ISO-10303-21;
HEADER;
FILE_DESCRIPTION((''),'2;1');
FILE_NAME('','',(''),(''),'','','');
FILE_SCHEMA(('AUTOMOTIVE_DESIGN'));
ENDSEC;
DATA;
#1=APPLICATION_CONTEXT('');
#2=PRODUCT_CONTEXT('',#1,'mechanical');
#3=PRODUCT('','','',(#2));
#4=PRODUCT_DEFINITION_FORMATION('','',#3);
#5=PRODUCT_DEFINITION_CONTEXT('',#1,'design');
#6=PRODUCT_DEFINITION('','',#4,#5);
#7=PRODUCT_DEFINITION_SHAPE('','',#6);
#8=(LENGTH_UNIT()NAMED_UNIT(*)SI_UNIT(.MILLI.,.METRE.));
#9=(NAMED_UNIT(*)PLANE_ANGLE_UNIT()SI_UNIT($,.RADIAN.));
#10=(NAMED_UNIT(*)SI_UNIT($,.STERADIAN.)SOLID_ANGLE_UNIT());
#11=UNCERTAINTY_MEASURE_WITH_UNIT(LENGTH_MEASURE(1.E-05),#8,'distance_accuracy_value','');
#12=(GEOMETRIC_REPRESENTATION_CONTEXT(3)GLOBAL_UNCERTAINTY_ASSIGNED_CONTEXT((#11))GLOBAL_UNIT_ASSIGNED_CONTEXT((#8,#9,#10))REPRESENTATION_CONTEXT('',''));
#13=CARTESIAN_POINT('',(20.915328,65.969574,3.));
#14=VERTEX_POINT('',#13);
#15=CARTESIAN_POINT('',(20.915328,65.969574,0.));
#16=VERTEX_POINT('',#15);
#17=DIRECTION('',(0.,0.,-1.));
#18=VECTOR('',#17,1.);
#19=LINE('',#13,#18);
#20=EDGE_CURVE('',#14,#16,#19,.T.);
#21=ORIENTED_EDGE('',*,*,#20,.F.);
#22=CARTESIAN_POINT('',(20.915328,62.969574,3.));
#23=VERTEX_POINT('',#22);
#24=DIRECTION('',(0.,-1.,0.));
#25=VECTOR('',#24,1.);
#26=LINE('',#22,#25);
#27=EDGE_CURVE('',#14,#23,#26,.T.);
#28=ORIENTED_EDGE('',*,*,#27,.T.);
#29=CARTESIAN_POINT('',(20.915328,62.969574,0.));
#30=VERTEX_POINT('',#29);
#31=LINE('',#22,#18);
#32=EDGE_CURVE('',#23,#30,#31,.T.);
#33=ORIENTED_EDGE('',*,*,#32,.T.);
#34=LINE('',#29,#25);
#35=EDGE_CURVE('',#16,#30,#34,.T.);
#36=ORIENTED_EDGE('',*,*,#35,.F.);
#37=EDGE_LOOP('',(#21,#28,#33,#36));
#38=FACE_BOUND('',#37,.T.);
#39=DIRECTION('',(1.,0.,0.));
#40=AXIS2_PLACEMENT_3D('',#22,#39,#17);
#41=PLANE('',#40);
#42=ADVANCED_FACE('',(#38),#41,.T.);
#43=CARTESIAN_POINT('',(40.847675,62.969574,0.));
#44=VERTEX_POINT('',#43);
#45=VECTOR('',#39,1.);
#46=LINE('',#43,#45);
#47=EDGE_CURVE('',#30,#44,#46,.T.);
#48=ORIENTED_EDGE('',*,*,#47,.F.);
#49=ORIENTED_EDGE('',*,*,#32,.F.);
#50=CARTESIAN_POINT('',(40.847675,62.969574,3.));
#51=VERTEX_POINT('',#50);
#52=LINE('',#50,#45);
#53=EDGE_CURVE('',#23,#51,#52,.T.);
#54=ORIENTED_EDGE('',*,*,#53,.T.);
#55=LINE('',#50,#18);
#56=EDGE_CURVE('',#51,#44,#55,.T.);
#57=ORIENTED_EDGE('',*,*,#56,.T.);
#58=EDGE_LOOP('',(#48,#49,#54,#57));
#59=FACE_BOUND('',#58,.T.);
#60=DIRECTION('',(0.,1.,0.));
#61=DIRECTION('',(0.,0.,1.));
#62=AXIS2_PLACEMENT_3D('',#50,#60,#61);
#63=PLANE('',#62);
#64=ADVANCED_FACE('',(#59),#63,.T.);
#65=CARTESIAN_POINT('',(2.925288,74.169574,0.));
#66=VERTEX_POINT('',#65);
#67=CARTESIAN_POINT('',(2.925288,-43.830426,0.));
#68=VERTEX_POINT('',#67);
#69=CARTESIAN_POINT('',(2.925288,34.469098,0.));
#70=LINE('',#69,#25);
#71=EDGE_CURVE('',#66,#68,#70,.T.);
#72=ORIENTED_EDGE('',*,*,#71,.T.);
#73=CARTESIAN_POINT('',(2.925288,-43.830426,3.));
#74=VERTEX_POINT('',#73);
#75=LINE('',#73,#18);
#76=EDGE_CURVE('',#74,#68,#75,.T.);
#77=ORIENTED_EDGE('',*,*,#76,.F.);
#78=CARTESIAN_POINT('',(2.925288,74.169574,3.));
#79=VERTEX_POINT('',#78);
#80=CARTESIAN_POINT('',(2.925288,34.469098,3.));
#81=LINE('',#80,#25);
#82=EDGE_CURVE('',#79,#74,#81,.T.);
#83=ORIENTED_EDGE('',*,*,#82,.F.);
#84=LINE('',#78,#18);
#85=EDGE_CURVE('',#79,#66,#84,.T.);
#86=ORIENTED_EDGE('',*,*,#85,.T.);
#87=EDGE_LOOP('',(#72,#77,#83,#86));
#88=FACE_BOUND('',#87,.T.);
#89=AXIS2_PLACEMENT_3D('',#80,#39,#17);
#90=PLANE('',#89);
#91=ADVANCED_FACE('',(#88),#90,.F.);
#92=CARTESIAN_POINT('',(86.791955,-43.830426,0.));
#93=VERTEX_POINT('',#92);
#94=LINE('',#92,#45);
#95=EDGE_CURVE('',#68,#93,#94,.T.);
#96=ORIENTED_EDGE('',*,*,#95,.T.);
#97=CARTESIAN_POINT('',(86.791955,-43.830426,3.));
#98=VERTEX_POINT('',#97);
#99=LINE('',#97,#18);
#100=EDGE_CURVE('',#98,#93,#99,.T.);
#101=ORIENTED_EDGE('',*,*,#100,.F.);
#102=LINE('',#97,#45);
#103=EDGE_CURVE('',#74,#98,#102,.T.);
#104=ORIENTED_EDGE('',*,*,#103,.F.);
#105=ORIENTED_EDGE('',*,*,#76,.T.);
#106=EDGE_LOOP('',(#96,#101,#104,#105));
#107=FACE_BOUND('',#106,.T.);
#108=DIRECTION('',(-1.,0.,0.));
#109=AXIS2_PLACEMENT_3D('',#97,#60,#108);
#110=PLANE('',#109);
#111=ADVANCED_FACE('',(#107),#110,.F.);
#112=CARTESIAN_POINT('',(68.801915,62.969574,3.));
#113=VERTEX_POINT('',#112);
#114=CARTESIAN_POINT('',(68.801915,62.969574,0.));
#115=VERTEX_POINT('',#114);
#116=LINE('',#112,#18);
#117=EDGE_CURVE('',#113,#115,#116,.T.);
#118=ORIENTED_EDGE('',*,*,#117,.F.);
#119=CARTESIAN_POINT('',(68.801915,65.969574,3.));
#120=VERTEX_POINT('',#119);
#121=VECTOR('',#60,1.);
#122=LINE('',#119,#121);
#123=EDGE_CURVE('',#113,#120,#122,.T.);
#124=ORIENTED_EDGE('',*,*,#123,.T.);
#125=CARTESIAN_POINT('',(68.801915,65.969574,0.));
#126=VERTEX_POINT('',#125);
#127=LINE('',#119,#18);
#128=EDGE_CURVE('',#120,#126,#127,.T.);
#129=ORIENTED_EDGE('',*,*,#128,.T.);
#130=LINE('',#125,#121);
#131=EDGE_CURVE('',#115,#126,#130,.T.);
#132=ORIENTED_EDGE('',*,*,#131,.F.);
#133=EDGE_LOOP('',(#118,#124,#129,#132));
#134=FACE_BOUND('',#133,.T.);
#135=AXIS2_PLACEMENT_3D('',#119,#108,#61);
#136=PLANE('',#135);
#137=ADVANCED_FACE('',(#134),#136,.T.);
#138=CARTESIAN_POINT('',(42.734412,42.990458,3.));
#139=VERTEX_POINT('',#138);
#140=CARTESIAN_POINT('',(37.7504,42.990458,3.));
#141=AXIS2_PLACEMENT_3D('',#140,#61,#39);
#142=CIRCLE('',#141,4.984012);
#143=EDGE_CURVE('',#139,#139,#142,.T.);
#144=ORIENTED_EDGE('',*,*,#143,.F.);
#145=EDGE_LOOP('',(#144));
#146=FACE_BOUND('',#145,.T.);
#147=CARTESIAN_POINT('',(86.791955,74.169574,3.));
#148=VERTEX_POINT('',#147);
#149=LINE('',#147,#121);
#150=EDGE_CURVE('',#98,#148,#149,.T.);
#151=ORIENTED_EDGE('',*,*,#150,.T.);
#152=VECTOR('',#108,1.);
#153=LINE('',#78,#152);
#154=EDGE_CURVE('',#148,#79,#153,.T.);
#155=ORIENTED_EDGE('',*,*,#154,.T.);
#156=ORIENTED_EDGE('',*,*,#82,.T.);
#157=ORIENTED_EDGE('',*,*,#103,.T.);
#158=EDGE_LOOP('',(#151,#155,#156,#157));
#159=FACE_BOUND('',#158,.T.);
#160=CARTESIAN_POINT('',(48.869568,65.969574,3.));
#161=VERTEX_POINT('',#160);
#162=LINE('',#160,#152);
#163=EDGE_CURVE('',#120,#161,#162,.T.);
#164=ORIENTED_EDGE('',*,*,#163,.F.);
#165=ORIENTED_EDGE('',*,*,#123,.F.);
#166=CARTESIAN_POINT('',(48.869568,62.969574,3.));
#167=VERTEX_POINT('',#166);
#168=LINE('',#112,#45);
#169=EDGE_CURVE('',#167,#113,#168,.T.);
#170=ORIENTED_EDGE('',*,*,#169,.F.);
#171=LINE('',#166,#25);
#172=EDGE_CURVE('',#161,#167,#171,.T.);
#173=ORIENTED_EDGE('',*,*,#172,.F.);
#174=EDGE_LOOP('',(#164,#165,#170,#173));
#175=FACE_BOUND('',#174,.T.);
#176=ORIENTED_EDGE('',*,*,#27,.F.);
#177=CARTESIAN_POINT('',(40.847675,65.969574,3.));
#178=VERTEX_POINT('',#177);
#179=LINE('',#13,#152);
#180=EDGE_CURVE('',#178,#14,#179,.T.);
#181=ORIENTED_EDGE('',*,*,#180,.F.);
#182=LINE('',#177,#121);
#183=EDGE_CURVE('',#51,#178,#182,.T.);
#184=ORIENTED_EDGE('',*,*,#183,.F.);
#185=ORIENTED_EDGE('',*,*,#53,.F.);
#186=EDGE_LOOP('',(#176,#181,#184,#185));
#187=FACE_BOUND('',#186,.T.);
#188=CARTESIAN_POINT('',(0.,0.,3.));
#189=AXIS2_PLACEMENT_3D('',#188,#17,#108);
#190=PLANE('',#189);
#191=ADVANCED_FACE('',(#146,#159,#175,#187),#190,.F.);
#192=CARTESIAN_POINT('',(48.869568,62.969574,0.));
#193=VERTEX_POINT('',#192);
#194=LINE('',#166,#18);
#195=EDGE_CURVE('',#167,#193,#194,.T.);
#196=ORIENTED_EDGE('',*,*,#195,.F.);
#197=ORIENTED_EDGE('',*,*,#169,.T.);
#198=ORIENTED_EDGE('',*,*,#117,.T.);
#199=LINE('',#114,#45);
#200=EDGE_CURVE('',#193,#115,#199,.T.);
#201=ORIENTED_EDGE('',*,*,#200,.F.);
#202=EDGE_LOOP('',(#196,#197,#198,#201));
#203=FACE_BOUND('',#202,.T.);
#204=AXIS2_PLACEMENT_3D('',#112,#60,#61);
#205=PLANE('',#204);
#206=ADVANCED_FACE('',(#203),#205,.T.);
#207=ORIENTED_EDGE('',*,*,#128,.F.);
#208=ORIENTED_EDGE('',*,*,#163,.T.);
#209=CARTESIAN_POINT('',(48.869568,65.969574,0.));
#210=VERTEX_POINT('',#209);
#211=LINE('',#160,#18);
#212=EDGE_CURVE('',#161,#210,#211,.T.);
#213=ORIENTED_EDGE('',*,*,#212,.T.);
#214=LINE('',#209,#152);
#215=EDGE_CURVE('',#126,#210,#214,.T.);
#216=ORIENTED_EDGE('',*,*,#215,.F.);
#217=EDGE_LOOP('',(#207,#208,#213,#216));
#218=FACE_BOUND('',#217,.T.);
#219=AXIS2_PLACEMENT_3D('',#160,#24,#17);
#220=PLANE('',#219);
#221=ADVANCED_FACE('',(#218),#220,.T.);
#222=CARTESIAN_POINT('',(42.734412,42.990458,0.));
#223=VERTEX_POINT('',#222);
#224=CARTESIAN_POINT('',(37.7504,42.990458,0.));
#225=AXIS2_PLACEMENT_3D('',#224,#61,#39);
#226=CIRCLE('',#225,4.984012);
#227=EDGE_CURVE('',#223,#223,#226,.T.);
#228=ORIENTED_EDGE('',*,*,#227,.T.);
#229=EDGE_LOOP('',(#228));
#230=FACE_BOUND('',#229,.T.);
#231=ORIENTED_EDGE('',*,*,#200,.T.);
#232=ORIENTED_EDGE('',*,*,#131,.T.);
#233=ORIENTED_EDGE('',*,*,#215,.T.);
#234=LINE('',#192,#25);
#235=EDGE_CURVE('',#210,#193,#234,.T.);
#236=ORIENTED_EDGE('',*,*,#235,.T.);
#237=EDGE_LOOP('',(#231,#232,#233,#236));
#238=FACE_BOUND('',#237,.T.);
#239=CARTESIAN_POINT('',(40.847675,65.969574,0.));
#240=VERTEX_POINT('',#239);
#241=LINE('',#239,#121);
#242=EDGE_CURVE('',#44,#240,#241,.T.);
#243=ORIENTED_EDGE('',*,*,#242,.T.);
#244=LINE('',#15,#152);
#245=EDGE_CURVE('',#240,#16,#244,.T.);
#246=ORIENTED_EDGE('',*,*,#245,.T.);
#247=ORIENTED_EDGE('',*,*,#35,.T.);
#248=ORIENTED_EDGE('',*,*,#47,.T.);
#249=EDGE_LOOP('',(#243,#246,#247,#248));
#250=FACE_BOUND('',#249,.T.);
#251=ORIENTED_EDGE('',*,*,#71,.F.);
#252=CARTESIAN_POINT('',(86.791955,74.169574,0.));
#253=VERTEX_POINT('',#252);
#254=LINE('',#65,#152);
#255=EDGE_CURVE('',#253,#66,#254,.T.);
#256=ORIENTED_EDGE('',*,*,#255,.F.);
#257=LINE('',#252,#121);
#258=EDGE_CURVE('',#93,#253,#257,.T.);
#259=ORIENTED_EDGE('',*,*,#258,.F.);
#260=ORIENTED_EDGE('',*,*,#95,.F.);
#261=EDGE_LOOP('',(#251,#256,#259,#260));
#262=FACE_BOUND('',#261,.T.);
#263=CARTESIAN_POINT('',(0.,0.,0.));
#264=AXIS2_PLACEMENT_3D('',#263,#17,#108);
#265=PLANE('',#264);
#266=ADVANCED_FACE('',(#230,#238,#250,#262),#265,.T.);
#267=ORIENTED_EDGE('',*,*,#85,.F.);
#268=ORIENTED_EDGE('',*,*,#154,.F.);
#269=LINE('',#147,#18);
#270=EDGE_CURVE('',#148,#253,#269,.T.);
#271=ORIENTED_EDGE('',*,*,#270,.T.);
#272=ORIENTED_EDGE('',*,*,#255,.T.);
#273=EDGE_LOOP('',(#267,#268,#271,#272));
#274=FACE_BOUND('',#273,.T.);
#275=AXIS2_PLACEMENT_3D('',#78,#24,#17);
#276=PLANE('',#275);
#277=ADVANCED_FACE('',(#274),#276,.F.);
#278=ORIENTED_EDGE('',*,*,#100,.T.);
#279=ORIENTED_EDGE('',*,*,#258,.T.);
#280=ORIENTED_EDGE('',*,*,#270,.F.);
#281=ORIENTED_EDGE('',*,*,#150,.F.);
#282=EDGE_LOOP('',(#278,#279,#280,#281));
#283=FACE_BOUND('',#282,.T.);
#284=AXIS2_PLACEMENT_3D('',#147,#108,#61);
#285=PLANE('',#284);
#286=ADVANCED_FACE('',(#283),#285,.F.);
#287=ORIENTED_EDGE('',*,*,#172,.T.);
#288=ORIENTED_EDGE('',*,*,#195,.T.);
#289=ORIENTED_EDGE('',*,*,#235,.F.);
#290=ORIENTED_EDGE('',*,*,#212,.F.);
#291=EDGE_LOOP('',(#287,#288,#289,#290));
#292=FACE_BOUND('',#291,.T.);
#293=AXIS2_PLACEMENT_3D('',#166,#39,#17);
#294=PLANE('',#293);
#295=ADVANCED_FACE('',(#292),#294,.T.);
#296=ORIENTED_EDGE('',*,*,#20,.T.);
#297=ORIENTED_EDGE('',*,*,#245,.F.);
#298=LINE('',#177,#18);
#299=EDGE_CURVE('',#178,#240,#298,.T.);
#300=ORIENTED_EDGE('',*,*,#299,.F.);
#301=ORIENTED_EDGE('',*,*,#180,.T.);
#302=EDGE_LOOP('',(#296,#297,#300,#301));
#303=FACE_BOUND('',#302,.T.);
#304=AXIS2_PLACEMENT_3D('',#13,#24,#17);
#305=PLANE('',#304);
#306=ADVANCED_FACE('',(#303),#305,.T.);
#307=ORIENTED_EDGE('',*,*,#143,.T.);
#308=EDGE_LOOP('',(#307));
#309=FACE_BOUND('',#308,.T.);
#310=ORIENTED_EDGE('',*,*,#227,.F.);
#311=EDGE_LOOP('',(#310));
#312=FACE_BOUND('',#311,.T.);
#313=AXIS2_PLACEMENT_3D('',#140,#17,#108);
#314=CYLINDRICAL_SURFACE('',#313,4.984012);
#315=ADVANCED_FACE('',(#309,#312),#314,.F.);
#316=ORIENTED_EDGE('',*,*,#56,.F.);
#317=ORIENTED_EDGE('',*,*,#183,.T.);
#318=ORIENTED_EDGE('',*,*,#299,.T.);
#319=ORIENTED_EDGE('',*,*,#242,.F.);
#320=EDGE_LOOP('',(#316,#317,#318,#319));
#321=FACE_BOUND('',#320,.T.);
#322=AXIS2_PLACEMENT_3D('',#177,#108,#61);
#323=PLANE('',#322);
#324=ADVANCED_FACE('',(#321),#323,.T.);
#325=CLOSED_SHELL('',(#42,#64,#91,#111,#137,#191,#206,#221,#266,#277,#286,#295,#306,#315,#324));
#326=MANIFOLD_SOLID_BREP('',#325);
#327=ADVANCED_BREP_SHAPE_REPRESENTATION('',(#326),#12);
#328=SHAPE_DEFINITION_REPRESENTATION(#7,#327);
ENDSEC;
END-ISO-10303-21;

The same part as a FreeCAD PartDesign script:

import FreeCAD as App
import Part
import Sketcher

V = App.Vector

doc = App.newDocument("Part")
params = doc.addObject("Spreadsheet::Sheet", "Params")
for row, (alias, value) in enumerate([
    ("sketch1_height", "118 mm"),
    ("sketch1_height2", "3 mm"),
    ("pad1_length", "3 mm"),
], start=1):
    params.set(f"A{row}", alias)
    params.set(f"B{row}", "=" + value)
    params.setAlias(f"B{row}", alias)

body = doc.addObject("PartDesign::Body", "Body")

sketch1 = body.newObject("Sketcher::SketchObject", "Sketch")
sketch1.AttachmentSupport = (doc.getObject("XY_Plane"), [""])
sketch1.MapMode = "FlatFace"
sketch1.addGeometry([
    Part.LineSegment(V(2.9, -43.8, 0), V(86.8, -43.8, 0)),
    Part.LineSegment(V(86.8, -43.8, 0), V(86.8, 74.2, 0)),
    Part.LineSegment(V(86.8, 74.2, 0), V(2.9, 74.2, 0)),
    Part.LineSegment(V(2.9, 74.2, 0), V(2.9, -43.8, 0)),
    Part.Circle(V(37.8, 43, 0), V(0, 0, 1), 5),
    Part.LineSegment(V(48.9, 63, 0), V(48.9, 66, 0)),
    Part.LineSegment(V(48.9, 66, 0), V(68.8, 66, 0)),
    Part.LineSegment(V(68.8, 66, 0), V(68.8, 63, 0)),
    Part.LineSegment(V(68.8, 63, 0), V(48.9, 63, 0)),
    Part.LineSegment(V(20.9, 63, 0), V(20.9, 66, 0)),
    Part.LineSegment(V(20.9, 66, 0), V(40.8, 66, 0)),
    Part.LineSegment(V(40.8, 66, 0), V(40.8, 63, 0)),
    Part.LineSegment(V(40.8, 63, 0), V(20.9, 63, 0)),
], False)
sketch1.addConstraint([
    Sketcher.Constraint("Coincident", 0, 2, 1, 1),
    Sketcher.Constraint("Coincident", 1, 2, 2, 1),
    Sketcher.Constraint("Coincident", 2, 2, 3, 1),
    Sketcher.Constraint("Coincident", 3, 2, 0, 1),
    Sketcher.Constraint("Coincident", 5, 2, 6, 1),
    Sketcher.Constraint("Coincident", 6, 2, 7, 1),
    Sketcher.Constraint("Coincident", 7, 2, 8, 1),
    Sketcher.Constraint("Coincident", 8, 2, 5, 1),
    Sketcher.Constraint("Coincident", 9, 2, 10, 1),
    Sketcher.Constraint("Coincident", 10, 2, 11, 1),
    Sketcher.Constraint("Coincident", 11, 2, 12, 1),
    Sketcher.Constraint("Coincident", 12, 2, 9, 1),
    Sketcher.Constraint("Horizontal", 0),
    Sketcher.Constraint("Vertical", 1),
    Sketcher.Constraint("Horizontal", 2),
    Sketcher.Constraint("Vertical", 3),
    Sketcher.Constraint("Vertical", 5),
    Sketcher.Constraint("Horizontal", 6),
    Sketcher.Constraint("Vertical", 7),
    Sketcher.Constraint("Horizontal", 8),
    Sketcher.Constraint("Vertical", 9),
    Sketcher.Constraint("Horizontal", 10),
    Sketcher.Constraint("Vertical", 11),
    Sketcher.Constraint("Horizontal", 12),
    Sketcher.Constraint("Horizontal", 6, 2, 9, 2),
    Sketcher.Constraint("Horizontal", 8, 2, 11, 2),
    Sketcher.Constraint("Equal", 8, 10),
    Sketcher.Constraint("DistanceY", 1, 1, 1, 2, 118.0),
    Sketcher.Constraint("DistanceY", 5, 1, 5, 2, 3.0),
    Sketcher.Constraint("DistanceY", 5, 2, 1, 2, 8.2),
    Sketcher.Constraint("Diameter", 4, 9.968024),
    Sketcher.Constraint("DistanceX", -1, 1, 4, 3, 37.7504),
    Sketcher.Constraint("DistanceX", 0, 1, 0, 2, 83.866667),
    Sketcher.Constraint("DistanceX", 6, 1, 6, 2, 19.932347),
    Sketcher.Constraint("DistanceX", -1, 1, 2, 2, 2.925288),
    Sketcher.Constraint("DistanceX", -1, 1, 5, 2, 48.869568),
    Sketcher.Constraint("DistanceX", -1, 1, 9, 2, 20.915328),
    Sketcher.Constraint("DistanceY", -1, 1, 4, 3, 42.990458),
    Sketcher.Constraint("DistanceY", 0, 2, -1, 1, 43.830426),
])
sketch1.setExpression("Constraints[27]", "Params.sketch1_height")
sketch1.setExpression("Constraints[28]", "Params.sketch1_height2")
pad1 = body.newObject("PartDesign::Pad", "Pad")
pad1.Profile = sketch1
pad1.setExpression("Length", "Params.pad1_length")

doc.recompute()
